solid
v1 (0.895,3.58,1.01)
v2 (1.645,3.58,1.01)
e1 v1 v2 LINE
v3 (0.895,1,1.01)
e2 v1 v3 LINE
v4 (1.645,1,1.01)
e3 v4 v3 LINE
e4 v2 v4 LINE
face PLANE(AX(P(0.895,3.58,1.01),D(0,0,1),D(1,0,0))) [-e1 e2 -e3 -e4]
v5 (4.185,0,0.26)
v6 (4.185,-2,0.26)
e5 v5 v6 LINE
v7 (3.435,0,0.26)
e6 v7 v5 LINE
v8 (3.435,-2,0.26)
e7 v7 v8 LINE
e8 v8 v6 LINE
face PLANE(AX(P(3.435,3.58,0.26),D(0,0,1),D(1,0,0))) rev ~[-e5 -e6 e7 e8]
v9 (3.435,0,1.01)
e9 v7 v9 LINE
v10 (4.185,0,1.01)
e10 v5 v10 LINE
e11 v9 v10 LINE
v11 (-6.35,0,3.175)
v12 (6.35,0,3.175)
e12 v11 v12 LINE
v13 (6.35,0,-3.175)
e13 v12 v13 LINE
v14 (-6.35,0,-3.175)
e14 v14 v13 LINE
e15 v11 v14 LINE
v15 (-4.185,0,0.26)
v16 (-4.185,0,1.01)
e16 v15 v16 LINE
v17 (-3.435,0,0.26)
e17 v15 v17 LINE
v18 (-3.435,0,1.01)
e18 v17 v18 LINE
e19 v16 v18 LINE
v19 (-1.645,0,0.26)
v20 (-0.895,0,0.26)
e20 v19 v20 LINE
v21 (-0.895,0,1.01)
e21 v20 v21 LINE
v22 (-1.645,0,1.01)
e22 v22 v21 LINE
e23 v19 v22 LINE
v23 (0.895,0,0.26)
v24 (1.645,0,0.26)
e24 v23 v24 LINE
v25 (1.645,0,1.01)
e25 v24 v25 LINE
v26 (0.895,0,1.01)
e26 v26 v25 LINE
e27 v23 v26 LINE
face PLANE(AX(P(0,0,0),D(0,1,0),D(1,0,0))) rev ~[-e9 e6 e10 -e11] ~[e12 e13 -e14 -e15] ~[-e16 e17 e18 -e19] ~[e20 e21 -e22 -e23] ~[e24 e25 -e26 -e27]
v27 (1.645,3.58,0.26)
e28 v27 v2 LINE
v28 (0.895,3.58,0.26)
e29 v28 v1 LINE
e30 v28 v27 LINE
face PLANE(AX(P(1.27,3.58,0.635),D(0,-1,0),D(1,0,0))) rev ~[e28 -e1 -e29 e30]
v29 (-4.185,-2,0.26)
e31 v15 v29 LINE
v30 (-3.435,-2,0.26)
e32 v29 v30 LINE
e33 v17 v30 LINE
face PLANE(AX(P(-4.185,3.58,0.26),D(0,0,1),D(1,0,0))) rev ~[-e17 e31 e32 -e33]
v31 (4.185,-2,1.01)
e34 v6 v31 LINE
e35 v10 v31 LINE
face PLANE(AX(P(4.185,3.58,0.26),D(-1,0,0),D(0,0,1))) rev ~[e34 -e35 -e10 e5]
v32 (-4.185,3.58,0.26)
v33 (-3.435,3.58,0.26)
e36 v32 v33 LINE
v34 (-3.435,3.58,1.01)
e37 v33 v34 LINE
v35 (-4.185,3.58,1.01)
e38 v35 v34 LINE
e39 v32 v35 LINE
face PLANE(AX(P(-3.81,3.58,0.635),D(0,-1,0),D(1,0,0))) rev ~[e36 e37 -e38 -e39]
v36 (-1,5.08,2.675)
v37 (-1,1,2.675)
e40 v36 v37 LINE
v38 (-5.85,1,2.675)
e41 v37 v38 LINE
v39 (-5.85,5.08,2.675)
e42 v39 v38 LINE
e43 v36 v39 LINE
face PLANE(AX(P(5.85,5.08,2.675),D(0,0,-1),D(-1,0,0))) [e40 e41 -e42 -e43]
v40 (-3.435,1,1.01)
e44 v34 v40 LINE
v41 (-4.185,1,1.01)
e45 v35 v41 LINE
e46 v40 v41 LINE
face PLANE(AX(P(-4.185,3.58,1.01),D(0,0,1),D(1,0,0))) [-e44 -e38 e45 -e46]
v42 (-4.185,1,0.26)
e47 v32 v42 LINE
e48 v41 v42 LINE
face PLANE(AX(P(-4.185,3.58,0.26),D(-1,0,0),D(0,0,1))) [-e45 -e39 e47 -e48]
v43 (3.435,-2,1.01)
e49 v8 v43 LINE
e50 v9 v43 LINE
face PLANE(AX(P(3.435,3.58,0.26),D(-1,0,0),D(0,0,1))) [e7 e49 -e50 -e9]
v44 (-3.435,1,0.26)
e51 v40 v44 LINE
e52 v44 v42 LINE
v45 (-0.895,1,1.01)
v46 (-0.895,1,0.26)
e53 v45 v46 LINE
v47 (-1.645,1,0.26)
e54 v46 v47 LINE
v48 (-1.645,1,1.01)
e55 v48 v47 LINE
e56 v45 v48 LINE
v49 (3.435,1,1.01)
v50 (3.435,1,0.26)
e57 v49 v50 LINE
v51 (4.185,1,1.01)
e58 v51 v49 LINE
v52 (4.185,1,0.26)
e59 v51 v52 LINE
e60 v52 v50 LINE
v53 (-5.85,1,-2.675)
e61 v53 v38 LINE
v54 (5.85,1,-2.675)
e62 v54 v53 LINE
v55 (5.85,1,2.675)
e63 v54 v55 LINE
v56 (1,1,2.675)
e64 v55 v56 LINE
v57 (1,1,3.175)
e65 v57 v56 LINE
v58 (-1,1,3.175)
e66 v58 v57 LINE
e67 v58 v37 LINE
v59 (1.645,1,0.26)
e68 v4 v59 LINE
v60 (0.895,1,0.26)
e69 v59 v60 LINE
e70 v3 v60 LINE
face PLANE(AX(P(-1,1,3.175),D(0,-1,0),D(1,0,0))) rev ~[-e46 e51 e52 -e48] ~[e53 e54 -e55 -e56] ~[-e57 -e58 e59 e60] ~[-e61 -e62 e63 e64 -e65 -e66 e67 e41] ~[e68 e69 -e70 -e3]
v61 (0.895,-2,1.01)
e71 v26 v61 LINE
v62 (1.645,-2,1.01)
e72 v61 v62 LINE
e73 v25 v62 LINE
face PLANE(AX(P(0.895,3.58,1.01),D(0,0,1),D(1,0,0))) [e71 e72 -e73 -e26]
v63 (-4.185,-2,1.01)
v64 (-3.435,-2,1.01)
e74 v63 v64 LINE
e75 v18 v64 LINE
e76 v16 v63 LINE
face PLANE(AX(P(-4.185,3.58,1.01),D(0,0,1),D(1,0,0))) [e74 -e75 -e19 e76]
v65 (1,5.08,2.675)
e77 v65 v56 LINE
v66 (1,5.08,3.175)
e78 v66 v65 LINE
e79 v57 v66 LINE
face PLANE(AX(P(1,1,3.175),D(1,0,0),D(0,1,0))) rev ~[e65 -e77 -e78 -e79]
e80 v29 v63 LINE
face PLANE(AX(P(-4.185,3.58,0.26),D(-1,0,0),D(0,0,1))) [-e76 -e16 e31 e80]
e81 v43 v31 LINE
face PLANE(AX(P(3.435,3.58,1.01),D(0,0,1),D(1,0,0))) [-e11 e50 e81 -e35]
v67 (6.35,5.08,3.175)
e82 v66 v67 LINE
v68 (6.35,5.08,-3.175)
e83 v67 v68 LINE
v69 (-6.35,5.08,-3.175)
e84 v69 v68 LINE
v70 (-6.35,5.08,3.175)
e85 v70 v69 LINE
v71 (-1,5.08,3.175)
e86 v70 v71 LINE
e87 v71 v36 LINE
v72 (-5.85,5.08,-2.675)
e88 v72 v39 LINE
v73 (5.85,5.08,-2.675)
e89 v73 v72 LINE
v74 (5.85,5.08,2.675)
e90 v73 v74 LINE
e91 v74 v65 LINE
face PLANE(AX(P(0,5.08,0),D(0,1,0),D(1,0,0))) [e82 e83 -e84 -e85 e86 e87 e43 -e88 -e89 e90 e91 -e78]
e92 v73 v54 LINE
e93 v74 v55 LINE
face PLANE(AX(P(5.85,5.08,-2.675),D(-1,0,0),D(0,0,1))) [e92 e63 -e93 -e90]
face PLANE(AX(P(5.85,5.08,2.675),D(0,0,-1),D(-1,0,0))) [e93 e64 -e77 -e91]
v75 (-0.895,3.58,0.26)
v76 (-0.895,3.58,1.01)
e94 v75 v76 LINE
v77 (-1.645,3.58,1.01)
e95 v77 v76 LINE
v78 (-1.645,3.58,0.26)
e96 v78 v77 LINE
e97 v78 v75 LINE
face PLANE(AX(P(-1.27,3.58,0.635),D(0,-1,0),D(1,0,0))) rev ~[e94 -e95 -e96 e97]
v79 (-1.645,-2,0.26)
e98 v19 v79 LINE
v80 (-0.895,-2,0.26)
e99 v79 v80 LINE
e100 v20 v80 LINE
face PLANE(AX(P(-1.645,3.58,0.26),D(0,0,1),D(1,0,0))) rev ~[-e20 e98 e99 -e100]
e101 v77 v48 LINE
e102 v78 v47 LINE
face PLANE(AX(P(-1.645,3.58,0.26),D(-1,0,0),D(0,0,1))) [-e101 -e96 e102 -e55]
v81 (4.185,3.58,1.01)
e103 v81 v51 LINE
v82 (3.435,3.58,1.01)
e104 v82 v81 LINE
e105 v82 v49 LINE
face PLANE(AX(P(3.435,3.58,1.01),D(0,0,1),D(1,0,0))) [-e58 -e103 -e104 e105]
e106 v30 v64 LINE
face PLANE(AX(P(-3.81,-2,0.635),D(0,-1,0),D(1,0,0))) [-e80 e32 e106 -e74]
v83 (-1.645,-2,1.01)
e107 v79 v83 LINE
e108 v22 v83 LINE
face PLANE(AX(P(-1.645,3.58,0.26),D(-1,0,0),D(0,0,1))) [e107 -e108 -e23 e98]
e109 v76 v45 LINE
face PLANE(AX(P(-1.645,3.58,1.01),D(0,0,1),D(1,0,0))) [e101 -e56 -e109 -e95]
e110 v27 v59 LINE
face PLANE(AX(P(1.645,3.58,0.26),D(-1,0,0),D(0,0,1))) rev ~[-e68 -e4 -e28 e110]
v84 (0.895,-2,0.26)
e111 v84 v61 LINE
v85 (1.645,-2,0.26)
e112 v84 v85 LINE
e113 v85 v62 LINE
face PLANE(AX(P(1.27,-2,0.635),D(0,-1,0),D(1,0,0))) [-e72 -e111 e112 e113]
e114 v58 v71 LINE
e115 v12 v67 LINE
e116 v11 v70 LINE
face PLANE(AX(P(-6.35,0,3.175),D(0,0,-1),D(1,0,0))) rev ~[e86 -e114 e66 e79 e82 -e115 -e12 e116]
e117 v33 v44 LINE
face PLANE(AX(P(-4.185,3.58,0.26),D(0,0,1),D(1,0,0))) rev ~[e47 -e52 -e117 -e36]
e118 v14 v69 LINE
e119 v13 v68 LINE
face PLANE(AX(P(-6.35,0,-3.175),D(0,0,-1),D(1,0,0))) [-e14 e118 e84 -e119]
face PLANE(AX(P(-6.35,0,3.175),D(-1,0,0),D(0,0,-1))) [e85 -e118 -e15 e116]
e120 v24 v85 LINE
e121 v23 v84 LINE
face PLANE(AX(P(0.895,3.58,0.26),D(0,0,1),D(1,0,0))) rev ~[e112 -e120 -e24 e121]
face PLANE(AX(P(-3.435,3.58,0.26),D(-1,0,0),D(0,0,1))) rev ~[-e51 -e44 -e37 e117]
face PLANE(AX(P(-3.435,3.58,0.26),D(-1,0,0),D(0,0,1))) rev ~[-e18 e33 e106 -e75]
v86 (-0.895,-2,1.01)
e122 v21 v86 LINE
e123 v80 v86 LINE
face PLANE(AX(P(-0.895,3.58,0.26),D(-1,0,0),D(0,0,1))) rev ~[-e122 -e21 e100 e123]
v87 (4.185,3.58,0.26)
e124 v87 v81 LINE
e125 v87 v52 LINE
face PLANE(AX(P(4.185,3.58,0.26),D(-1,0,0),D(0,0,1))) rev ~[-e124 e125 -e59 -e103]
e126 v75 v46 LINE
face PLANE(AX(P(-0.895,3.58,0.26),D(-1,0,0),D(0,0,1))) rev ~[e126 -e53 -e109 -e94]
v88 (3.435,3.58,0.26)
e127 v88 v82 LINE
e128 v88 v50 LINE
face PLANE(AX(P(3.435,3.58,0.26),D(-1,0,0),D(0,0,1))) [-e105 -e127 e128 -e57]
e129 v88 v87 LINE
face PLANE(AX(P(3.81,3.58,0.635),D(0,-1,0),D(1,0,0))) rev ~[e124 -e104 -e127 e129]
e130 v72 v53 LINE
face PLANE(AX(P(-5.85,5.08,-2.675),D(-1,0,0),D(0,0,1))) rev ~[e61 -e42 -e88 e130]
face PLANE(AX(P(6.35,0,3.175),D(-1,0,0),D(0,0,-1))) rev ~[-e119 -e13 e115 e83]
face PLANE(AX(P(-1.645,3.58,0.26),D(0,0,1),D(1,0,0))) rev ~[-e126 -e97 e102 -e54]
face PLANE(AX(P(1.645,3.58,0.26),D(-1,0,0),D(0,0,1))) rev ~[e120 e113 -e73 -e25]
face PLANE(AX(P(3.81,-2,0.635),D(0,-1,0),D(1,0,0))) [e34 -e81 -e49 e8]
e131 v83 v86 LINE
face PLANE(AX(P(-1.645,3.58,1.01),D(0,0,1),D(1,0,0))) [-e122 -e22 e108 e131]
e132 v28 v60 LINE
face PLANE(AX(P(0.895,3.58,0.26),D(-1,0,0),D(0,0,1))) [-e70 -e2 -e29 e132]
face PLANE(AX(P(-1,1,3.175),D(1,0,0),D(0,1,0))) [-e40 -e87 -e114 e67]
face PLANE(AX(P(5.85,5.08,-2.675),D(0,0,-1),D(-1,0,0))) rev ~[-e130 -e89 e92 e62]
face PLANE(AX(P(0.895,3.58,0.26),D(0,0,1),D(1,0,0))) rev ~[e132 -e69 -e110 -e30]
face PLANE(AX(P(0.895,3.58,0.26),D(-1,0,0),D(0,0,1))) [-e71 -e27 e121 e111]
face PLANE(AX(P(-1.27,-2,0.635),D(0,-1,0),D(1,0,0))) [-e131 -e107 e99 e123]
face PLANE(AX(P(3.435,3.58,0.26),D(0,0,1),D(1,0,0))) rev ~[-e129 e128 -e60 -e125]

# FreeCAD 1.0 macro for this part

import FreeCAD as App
import Part
import Sketcher
from FreeCAD import Vector
Q = App.Units.Quantity

doc = App.newDocument("Part")
body = doc.addObject("PartDesign::Body", "Body")

sketch1 = body.newObject("Sketcher::SketchObject", "Sketch")
sketch1.AttachmentSupport = (doc.getObject("XZ_Plane"), [""])
sketch1.MapMode = "FlatFace"
sketch1.addGeometry(Part.LineSegment(Vector(-6, -3, 0), Vector(-6, 3, 0)), False)
sketch1.addGeometry(Part.LineSegment(Vector(-6, 3, 0), Vector(6, 3, 0)), False)
sketch1.addGeometry(Part.LineSegment(Vector(6, 3, 0), Vector(6, -3, 0)), False)
sketch1.addGeometry(Part.LineSegment(Vector(6, -3, 0), Vector(-6, -3, 0)), False)
sketch1.addConstraint(Sketcher.Constraint("Coincident", 0, 2, 1, 1))
sketch1.addConstraint(Sketcher.Constraint("Coincident", 1, 2, 2, 1))
sketch1.addConstraint(Sketcher.Constraint("Coincident", 2, 2, 3, 1))
sketch1.addConstraint(Sketcher.Constraint("Coincident", 3, 2, 0, 1))
sketch1.addConstraint(Sketcher.Constraint("Vertical", 0))
sketch1.addConstraint(Sketcher.Constraint("Horizontal", 1))
sketch1.addConstraint(Sketcher.Constraint("Vertical", 2))
sketch1.addConstraint(Sketcher.Constraint("Horizontal", 3))
sketch1.addConstraint(Sketcher.Constraint("Symmetric", 0, 2, 2, 2, -1, 1))
sketch1.addConstraint(Sketcher.Constraint("DistanceX", 1, 1, 1, 2, Q("12.7 mm")))
sketch1.addConstraint(Sketcher.Constraint("DistanceY", 0, 1, 0, 2, Q("6.35 mm")))
pad1 = body.newObject("PartDesign::Pad", "Pad")
pad1.Profile = sketch1
pad1.Length = 5.08
pad1.Reversed = True

sketch2 = body.newObject("Sketcher::SketchObject", "Sketch001")
sketch2.AttachmentSupport = (doc.getObject("XZ_Plane"), [""])
sketch2.MapMode = "FlatFace"
sketch2.AttachmentOffset = App.Placement(Vector(0, 0, -5.08), App.Rotation())
sketch2.addGeometry(Part.LineSegment(Vector(6, 3, 0), Vector(6, -3, 0)), False)
sketch2.addGeometry(Part.LineSegment(Vector(6, -3, 0), Vector(-6, -3, 0)), False)
sketch2.addGeometry(Part.LineSegment(Vector(-6, -3, 0), Vector(-6, 3, 0)), False)
sketch2.addGeometry(Part.LineSegment(Vector(-6, 3, 0), Vector(6, 3, 0)), False)
sketch2.addConstraint(Sketcher.Constraint("Coincident", 0, 2, 1, 1))
sketch2.addConstraint(Sketcher.Constraint("Coincident", 1, 2, 2, 1))
sketch2.addConstraint(Sketcher.Constraint("Coincident", 2, 2, 3, 1))
sketch2.addConstraint(Sketcher.Constraint("Coincident", 3, 2, 0, 1))
sketch2.addConstraint(Sketcher.Constraint("Vertical", 0))
sketch2.addConstraint(Sketcher.Constraint("Horizontal", 1))
sketch2.addConstraint(Sketcher.Constraint("Vertical", 2))
sketch2.addConstraint(Sketcher.Constraint("Horizontal", 3))
sketch2.addConstraint(Sketcher.Constraint("Symmetric", 0, 2, 2, 2, -1, 1))
sketch2.addConstraint(Sketcher.Constraint("DistanceX", 1, 2, 1, 1, Q("11.7 mm")))
sketch2.addConstraint(Sketcher.Constraint("DistanceY", 0, 2, 0, 1, Q("5.35 mm")))
pocket1 = body.newObject("PartDesign::Pocket", "Pocket")
pocket1.Profile = sketch2
pocket1.Length = 4.08
pocket1.Reversed = True

sketch3 = body.newObject("Sketcher::SketchObject", "Sketch002")
sketch3.AttachmentSupport = (doc.getObject("XY_Plane"), [""])
sketch3.MapMode = "FlatFace"
sketch3.AttachmentOffset = App.Placement(Vector(0, 0, 3.175), App.Rotation())
sketch3.addGeometry(Part.LineSegment(Vector(-1, 5.1, 0), Vector(-1, 1, 0)), False)
sketch3.addGeometry(Part.LineSegment(Vector(-1, 1, 0), Vector(1, 1, 0)), False)
sketch3.addGeometry(Part.LineSegment(Vector(1, 1, 0), Vector(1, 5.1, 0)), False)
sketch3.addGeometry(Part.LineSegment(Vector(1, 5.1, 0), Vector(-1, 5.1, 0)), False)
sketch3.addConstraint(Sketcher.Constraint("Coincident", 0, 2, 1, 1))
sketch3.addConstraint(Sketcher.Constraint("Coincident", 1, 2, 2, 1))
sketch3.addConstraint(Sketcher.Constraint("Coincident", 2, 2, 3, 1))
sketch3.addConstraint(Sketcher.Constraint("Coincident", 3, 2, 0, 1))
sketch3.addConstraint(Sketcher.Constraint("Vertical", 0))
sketch3.addConstraint(Sketcher.Constraint("Horizontal", 1))
sketch3.addConstraint(Sketcher.Constraint("Vertical", 2))
sketch3.addConstraint(Sketcher.Constraint("Horizontal", 3))
sketch3.addConstraint(Sketcher.Constraint("DistanceX", 1, 1, 1, 2, Q("2 mm")))
sketch3.addConstraint(Sketcher.Constraint("DistanceX", 0, 2, -1, 1, Q("1 mm")))
sketch3.addConstraint(Sketcher.Constraint("DistanceY", -1, 1, 0, 2, Q("1 mm")))
sketch3.addConstraint(Sketcher.Constraint("DistanceY", 0, 2, 0, 1, Q("4.08 mm")))
pocket2 = body.newObject("PartDesign::Pocket", "Pocket001")
pocket2.Profile = sketch3
pocket2.Length = 1

sketch4 = body.newObject("Sketcher::SketchObject", "Sketch003")
sketch4.AttachmentSupport = (doc.getObject("XZ_Plane"), [""])
sketch4.MapMode = "FlatFace"
sketch4.addGeometry(Part.LineSegment(Vector(-1.6, 1, 0), Vector(-1.6, 0.3, 0)), False)
sketch4.addGeometry(Part.LineSegment(Vector(-1.6, 0.3, 0), Vector(-0.9, 0.3, 0)), False)
sketch4.addGeometry(Part.LineSegment(Vector(-0.9, 0.3, 0), Vector(-0.9, 1, 0)), False)
sketch4.addGeometry(Part.LineSegment(Vector(-0.9, 1, 0), Vector(-1.6, 1, 0)), False)
sketch4.addGeometry(Part.LineSegment(Vector(0.9, 1, 0), Vector(0.9, 0.3, 0)), False)
sketch4.addGeometry(Part.LineSegment(Vector(0.9, 0.3, 0), Vector(1.6, 0.3, 0)), False)
sketch4.addGeometry(Part.LineSegment(Vector(1.6, 0.3, 0), Vector(1.6, 1, 0)), False)
sketch4.addGeometry(Part.LineSegment(Vector(1.6, 1, 0), Vector(0.9, 1, 0)), False)
sketch4.addGeometry(Part.LineSegment(Vector(3.4, 1, 0), Vector(3.4, 0.3, 0)), False)
sketch4.addGeometry(Part.LineSegment(Vector(3.4, 0.3, 0), Vector(4.2, 0.3, 0)), False)
sketch4.addGeometry(Part.LineSegment(Vector(4.2, 0.3, 0), Vector(4.2, 1, 0)), False)
sketch4.addGeometry(Part.LineSegment(Vector(4.2, 1, 0), Vector(3.4, 1, 0)), False)
sketch4.addGeometry(Part.LineSegment(Vector(-4.2, 1, 0), Vector(-4.2, 0.3, 0)), False)
sketch4.addGeometry(Part.LineSegment(Vector(-4.2, 0.3, 0), Vector(-3.4, 0.3, 0)), False)
sketch4.addGeometry(Part.LineSegment(Vector(-3.4, 0.3, 0), Vector(-3.4, 1, 0)), False)
sketch4.addGeometry(Part.LineSegment(Vector(-3.4, 1, 0), Vector(-4.2, 1, 0)), False)
sketch4.addConstraint(Sketcher.Constraint("Coincident", 0, 2, 1, 1))
sketch4.addConstraint(Sketcher.Constraint("Coincident", 1, 2, 2, 1))
sketch4.addConstraint(Sketcher.Constraint("Coincident", 2, 2, 3, 1))
sketch4.addConstraint(Sketcher.Constraint("Coincident", 3, 2, 0, 1))
sketch4.addConstraint(Sketcher.Constraint("Coincident", 4, 2, 5, 1))
sketch4.addConstraint(Sketcher.Constraint("Coincident", 5, 2, 6, 1))
sketch4.addConstraint(Sketcher.Constraint("Coincident", 6, 2, 7, 1))
sketch4.addConstraint(Sketcher.Constraint("Coincident", 7, 2, 4, 1))
sketch4.addConstraint(Sketcher.Constraint("Coincident", 8, 2, 9, 1))
sketch4.addConstraint(Sketcher.Constraint("Coincident", 9, 2, 10, 1))
sketch4.addConstraint(Sketcher.Constraint("Coincident", 10, 2, 11, 1))
sketch4.addConstraint(Sketcher.Constraint("Coincident", 11, 2, 8, 1))
sketch4.addConstraint(Sketcher.Constraint("Coincident", 12, 2, 13, 1))
sketch4.addConstraint(Sketcher.Constraint("Coincident", 13, 2, 14, 1))
sketch4.addConstraint(Sketcher.Constraint("Coincident", 14, 2, 15, 1))
sketch4.addConstraint(Sketcher.Constraint("Coincident", 15, 2, 12, 1))
sketch4.addConstraint(Sketcher.Constraint("Vertical", 0))
sketch4.addConstraint(Sketcher.Constraint("Horizontal", 1))
sketch4.addConstraint(Sketcher.Constraint("Vertical", 2))
sketch4.addConstraint(Sketcher.Constraint("Horizontal", 3))
sketch4.addConstraint(Sketcher.Constraint("Vertical", 4))
sketch4.addConstraint(Sketcher.Constraint("Horizontal", 5))
sketch4.addConstraint(Sketcher.Constraint("Vertical", 6))
sketch4.addConstraint(Sketcher.Constraint("Horizontal", 7))
sketch4.addConstraint(Sketcher.Constraint("Vertical", 8))
sketch4.addConstraint(Sketcher.Constraint("Horizontal", 9))
sketch4.addConstraint(Sketcher.Constraint("Vertical", 10))
sketch4.addConstraint(Sketcher.Constraint("Horizontal", 11))
sketch4.addConstraint(Sketcher.Constraint("Vertical", 12))
sketch4.addConstraint(Sketcher.Constraint("Horizontal", 13))
sketch4.addConstraint(Sketcher.Constraint("Vertical", 14))
sketch4.addConstraint(Sketcher.Constraint("Horizontal", 15))
sketch4.addConstraint(Sketcher.Constraint("Symmetric", 1, 2, 4, 2, -2))
sketch4.addConstraint(Sketcher.Constraint("Symmetric", 3, 2, 6, 2, -2))
sketch4.addConstraint(Sketcher.Constraint("Symmetric", 9, 2, 12, 2, -2))
sketch4.addConstraint(Sketcher.Constraint("Symmetric", 11, 2, 14, 2, -2))
sketch4.addConstraint(Sketcher.Constraint("Horizontal", 5, 2, 8, 2))
sketch4.addConstraint(Sketcher.Constraint("Horizontal", 7, 2, 10, 2))
sketch4.addConstraint(Sketcher.Constraint("Equal", 7, 9))
sketch4.addConstraint(Sketcher.Constraint("Equal", 15, 0))
sketch4.addConstraint(Sketcher.Constraint("DistanceX", 1, 1, 1, 2, Q("0.75 mm")))
sketch4.addConstraint(Sketcher.Constraint("DistanceY", -1, 1, 0, 2, Q("0.26 mm")))
sketch4.addConstraint(Sketcher.Constraint("DistanceX", 1, 2, 4, 2, Q("1.79 mm")))
sketch4.addConstraint(Sketcher.Constraint("DistanceX", 5, 2, 8, 2, Q("1.79 mm")))
pad2 = body.newObject("PartDesign::Pad", "Pad001")
pad2.Profile = sketch4
pad2.Type = "TwoLengths"
pad2.Length = 2
pad2.Length2 = 3.58

doc.recompute()
